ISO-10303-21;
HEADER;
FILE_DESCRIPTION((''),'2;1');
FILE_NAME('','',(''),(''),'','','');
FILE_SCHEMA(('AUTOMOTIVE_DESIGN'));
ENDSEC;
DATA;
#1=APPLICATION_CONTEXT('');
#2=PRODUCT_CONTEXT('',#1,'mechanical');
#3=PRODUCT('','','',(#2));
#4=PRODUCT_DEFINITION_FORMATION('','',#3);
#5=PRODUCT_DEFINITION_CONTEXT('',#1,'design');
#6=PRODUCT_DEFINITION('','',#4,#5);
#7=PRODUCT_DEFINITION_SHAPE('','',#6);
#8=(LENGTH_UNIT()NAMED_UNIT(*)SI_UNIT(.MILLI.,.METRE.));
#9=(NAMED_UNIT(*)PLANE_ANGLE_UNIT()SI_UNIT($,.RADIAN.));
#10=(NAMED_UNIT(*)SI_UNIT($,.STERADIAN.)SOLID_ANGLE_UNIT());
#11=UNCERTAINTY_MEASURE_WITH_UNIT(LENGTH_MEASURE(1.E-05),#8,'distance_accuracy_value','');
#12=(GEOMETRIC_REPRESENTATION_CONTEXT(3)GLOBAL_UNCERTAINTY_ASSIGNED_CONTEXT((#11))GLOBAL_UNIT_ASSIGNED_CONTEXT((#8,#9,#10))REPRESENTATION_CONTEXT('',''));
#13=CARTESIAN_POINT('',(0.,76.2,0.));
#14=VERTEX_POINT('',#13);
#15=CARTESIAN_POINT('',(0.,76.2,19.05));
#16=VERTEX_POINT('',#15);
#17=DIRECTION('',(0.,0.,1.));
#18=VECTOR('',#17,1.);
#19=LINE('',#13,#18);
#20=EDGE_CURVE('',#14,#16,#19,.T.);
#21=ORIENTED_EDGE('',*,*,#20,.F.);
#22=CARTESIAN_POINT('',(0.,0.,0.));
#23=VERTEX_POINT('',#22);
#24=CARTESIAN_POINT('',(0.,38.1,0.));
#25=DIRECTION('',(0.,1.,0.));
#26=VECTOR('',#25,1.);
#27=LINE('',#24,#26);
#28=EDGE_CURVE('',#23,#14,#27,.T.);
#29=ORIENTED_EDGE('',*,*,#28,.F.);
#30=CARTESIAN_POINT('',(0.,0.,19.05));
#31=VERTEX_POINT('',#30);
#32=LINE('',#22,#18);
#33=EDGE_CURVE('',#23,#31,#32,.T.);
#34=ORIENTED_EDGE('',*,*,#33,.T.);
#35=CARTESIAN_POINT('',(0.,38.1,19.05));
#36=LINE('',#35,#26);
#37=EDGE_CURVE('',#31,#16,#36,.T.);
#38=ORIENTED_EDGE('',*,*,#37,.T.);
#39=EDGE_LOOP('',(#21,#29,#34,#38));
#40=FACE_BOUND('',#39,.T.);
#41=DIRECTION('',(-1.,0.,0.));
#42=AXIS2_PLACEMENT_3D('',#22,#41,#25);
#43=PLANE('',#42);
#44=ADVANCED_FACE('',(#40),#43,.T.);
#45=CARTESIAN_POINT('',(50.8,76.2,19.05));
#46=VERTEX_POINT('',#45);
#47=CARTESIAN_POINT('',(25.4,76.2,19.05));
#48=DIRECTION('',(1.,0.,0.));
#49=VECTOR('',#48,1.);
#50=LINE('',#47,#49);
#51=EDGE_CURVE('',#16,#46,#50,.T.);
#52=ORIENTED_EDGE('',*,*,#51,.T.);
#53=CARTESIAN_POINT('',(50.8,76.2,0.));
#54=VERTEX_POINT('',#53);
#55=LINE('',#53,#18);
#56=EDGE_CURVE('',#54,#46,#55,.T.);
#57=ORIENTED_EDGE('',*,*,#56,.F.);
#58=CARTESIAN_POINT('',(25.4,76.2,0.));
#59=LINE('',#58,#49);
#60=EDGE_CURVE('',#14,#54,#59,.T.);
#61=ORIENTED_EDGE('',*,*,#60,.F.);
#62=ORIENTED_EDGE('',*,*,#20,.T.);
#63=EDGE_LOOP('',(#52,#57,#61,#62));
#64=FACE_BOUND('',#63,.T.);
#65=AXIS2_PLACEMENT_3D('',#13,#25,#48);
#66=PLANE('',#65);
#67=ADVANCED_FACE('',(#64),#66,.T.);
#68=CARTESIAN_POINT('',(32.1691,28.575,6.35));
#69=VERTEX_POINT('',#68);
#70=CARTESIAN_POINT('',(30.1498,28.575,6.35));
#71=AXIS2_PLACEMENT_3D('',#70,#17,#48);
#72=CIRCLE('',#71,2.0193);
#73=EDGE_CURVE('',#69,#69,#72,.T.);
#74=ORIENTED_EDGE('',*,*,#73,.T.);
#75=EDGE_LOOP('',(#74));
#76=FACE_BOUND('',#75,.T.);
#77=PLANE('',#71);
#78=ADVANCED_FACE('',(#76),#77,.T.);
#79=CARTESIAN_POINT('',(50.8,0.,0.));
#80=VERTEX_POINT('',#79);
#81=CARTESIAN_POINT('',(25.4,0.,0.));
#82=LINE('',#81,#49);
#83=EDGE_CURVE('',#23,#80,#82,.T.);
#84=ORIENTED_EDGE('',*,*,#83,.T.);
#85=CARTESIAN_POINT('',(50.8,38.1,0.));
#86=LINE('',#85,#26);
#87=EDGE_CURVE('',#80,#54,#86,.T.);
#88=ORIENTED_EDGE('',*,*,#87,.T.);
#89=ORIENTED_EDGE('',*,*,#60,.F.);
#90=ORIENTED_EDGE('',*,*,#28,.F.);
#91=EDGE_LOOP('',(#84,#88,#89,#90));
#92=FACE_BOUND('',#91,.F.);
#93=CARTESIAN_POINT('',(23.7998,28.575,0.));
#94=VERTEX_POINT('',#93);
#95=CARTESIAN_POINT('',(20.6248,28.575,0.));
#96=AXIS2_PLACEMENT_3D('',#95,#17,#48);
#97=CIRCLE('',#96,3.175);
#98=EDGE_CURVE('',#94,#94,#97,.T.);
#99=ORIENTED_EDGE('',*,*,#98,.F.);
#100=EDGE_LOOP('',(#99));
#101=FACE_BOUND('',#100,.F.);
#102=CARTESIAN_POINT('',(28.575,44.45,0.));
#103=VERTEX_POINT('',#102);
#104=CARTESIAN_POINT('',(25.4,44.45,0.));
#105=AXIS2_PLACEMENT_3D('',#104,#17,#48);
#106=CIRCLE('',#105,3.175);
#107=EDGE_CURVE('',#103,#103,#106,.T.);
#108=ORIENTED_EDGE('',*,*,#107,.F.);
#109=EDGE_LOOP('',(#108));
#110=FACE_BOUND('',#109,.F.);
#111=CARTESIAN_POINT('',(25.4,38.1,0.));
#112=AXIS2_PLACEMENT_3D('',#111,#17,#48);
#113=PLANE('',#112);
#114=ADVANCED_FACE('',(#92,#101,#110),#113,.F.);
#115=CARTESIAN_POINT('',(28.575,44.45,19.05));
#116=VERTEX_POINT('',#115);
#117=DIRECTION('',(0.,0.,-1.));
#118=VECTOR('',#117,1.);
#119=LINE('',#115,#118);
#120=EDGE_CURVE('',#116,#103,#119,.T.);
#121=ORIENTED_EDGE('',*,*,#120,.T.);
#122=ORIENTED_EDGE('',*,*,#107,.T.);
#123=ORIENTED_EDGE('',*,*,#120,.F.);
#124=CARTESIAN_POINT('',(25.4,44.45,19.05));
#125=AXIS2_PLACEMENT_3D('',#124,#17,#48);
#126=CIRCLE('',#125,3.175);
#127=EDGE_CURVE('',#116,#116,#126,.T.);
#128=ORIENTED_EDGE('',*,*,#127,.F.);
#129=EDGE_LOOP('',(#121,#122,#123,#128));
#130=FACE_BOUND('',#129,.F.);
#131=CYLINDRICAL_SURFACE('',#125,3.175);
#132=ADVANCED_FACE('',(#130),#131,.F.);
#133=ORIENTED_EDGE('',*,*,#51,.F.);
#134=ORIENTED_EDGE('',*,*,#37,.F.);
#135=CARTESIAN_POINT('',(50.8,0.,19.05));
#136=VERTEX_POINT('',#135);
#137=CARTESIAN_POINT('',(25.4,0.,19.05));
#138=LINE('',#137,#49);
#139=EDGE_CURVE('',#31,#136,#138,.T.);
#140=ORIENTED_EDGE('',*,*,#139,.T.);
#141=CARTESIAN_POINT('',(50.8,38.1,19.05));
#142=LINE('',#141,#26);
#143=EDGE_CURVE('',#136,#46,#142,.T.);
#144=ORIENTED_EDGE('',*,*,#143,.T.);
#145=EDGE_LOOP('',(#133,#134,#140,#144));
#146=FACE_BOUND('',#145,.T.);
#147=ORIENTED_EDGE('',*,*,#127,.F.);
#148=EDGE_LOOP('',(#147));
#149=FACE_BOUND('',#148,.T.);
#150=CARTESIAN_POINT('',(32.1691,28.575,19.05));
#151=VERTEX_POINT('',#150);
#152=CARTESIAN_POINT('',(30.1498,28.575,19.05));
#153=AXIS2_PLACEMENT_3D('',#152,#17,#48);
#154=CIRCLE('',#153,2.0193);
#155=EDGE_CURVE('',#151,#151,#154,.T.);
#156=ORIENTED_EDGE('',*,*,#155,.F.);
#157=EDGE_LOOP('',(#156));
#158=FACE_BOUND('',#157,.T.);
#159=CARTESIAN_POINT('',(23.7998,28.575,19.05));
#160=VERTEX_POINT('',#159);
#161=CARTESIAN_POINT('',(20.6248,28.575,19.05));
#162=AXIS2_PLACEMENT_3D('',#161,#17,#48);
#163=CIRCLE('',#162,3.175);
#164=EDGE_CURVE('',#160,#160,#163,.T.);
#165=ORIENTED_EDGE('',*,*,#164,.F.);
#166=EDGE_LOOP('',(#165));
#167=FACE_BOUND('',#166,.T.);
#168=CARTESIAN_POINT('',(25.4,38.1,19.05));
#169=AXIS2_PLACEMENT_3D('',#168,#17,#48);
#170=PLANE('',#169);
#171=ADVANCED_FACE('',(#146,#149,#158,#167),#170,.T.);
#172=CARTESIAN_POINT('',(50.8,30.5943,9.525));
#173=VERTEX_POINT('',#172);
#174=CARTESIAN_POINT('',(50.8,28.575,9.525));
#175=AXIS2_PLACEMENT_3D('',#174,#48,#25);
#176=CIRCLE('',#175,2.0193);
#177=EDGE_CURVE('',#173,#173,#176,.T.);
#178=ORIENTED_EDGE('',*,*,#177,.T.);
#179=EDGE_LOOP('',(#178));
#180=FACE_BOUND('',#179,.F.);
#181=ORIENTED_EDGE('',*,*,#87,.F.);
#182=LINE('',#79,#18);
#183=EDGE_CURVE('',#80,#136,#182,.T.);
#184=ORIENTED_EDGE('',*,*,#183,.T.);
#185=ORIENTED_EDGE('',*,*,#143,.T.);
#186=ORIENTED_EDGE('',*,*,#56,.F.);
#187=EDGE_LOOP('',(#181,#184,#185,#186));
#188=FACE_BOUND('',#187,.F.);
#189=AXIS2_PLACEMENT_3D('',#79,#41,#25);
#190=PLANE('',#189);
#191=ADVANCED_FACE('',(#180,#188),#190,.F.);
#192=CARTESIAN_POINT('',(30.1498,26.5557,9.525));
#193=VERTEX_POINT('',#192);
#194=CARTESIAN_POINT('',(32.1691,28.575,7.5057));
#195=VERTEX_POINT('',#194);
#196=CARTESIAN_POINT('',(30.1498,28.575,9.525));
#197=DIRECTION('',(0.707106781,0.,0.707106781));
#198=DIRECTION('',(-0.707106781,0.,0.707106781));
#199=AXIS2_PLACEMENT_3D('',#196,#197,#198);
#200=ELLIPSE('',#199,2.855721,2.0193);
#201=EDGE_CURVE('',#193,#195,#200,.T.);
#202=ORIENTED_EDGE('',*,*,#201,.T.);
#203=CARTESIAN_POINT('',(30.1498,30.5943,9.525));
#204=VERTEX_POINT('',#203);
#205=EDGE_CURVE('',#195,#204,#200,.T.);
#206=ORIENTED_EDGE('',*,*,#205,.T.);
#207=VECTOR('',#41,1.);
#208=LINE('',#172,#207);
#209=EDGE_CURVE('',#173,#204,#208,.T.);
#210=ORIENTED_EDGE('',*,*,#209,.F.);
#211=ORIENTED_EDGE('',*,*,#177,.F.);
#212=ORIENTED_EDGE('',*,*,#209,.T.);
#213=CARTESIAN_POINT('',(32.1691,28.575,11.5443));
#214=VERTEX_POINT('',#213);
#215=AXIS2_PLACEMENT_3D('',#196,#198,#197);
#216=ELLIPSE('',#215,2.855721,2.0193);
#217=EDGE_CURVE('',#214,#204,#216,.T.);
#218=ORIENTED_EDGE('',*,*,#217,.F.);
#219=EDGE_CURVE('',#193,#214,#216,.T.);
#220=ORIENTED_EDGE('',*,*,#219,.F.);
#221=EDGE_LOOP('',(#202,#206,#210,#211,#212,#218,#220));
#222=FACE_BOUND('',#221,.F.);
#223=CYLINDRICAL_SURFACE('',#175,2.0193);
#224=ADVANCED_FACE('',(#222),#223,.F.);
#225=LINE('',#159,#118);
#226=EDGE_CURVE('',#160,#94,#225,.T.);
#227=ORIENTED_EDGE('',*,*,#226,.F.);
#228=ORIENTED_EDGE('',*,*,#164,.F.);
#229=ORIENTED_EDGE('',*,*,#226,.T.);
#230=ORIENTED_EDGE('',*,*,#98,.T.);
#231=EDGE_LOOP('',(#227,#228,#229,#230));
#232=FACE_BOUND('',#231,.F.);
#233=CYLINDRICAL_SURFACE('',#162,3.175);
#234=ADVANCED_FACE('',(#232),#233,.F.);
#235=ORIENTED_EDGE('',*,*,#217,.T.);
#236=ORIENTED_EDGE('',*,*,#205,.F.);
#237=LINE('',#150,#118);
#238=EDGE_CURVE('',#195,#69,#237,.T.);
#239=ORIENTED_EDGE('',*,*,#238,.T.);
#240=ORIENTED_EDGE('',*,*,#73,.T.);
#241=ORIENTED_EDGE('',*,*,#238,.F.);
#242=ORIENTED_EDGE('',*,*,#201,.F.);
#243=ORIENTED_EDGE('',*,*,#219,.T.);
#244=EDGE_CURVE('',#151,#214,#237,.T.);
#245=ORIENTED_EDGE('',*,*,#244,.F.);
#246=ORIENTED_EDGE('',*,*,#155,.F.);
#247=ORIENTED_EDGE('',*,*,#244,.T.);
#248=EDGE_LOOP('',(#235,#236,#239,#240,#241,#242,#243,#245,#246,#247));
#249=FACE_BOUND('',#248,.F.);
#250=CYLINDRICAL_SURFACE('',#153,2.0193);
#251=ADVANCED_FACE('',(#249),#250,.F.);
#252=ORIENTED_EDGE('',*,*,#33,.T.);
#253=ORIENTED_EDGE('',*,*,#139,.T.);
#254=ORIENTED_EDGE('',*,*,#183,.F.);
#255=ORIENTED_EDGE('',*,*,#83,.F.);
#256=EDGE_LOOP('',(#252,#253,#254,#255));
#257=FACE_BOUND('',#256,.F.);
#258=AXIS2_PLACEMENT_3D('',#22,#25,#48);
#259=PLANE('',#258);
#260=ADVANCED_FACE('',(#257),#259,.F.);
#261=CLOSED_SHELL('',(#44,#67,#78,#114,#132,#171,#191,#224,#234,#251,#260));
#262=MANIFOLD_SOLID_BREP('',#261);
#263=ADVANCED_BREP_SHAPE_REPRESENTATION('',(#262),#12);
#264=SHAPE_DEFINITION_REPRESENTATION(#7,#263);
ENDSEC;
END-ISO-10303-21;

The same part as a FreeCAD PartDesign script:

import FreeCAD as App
import Part
import Sketcher
Q = App.Units.Quantity

doc = App.newDocument("Part")
body = doc.addObject("PartDesign::Body", "Body")

sketch1 = doc.addObject("Sketcher::SketchObject", "Sketch")
body.addObject(sketch1)
sketch1.AttachmentSupport = (doc.XY_Plane, [""])
sketch1.MapMode = "FlatFace"
sketch1.addGeometry([
    Part.LineSegment(App.Vector(0, 76, 0), App.Vector(0, 0, 0)),
    Part.LineSegment(App.Vector(0, 0, 0), App.Vector(51, 0, 0)),
    Part.LineSegment(App.Vector(51, 0, 0), App.Vector(51, 76, 0)),
    Part.LineSegment(App.Vector(51, 76, 0), App.Vector(0, 76, 0)),
], False)
sketch1.addConstraint([
    Sketcher.Constraint("Coincident", 0, 2, 1, 1),
    Sketcher.Constraint("Coincident", 1, 2, 2, 1),
    Sketcher.Constraint("Coincident", 2, 2, 3, 1),
    Sketcher.Constraint("Coincident", 3, 2, 0, 1),
    Sketcher.Constraint("Vertical", 0),
    Sketcher.Constraint("Horizontal", 1),
    Sketcher.Constraint("Vertical", 2),
    Sketcher.Constraint("Horizontal", 3),
    Sketcher.Constraint("Coincident", 0, 2, -1, 1),
    Sketcher.Constraint("DistanceX", 1, 1, 1, 2, Q("2 in")),
    Sketcher.Constraint("DistanceY", 0, 2, 0, 1, Q("3 in")),
])
pad1 = doc.addObject("PartDesign::Pad", "Pad")
body.addObject(pad1)
pad1.Profile = sketch1
pad1.Length = Q("0.75 in")

sketch2 = doc.addObject("Sketcher::SketchObject", "Sketch001")
body.addObject(sketch2)
sketch2.AttachmentSupport = (doc.XY_Plane, [""])
sketch2.MapMode = "FlatFace"
sketch2.AttachmentOffset = App.Placement(App.Vector(0, 0, 0.75 * 25.4), App.Rotation())
sketch2.addGeometry([
    Part.Circle(App.Vector(25.4, 44.5, 0), App.Vector(0, 0, 1), 3.2),
    Part.Circle(App.Vector(20.6, 28.6, 0), App.Vector(0, 0, 1), 3.2),
], False)
sketch2.addConstraint([
    Sketcher.Constraint("Equal", 0, 1),
    Sketcher.Constraint("Diameter", 0, Q("0.25 in")),
    Sketcher.Constraint("DistanceX", -1, 1, 0, 3, Q("1 in")),
    Sketcher.Constraint("DistanceY", -1, 1, 0, 3, Q("1.75 in")),
    Sketcher.Constraint("DistanceX", -1, 1, 1, 3, Q("0.812 in")),
    Sketcher.Constraint("DistanceY", -1, 1, 1, 3, Q("1.125 in")),
])
pocket1 = doc.addObject("PartDesign::Pocket", "Pocket")
body.addObject(pocket1)
pocket1.Profile = sketch2
pocket1.Length = Q("0.75 in")

sketch3 = doc.addObject("Sketcher::SketchObject", "Sketch002")
body.addObject(sketch3)
sketch3.AttachmentSupport = (doc.XY_Plane, [""])
sketch3.MapMode = "FlatFace"
sketch3.AttachmentOffset = App.Placement(App.Vector(0, 0, 0.75 * 25.4), App.Rotation())
sketch3.addGeometry([
    Part.Circle(App.Vector(25.4, 44.5, 0), App.Vector(0, 0, 1), 3.2),
    Part.Circle(App.Vector(20.6, 28.6, 0), App.Vector(0, 0, 1), 3.2),
    Part.Circle(App.Vector(30.1, 28.6, 0), App.Vector(0, 0, 1), 2),
], False)
sketch3.addConstraint([
    Sketcher.Constraint("Equal", 0, 1),
    Sketcher.Constraint("Horizontal", 1, 3, 2, 3),
    Sketcher.Constraint("Diameter", 0, Q("0.25 in")),
    Sketcher.Constraint("Diameter", 2, Q("0.159 in")),
    Sketcher.Constraint("DistanceX", -1, 1, 0, 3, Q("1 in")),
    Sketcher.Constraint("DistanceY", -1, 1, 0, 3, Q("1.75 in")),
    Sketcher.Constraint("DistanceX", -1, 1, 1, 3, Q("0.812 in")),
    Sketcher.Constraint("DistanceY", -1, 1, 1, 3, Q("1.125 in")),
    Sketcher.Constraint("DistanceX", -1, 1, 2, 3, Q("1.187 in")),
])
pocket2 = doc.addObject("PartDesign::Pocket", "Pocket001")
body.addObject(pocket2)
pocket2.Profile = sketch3
pocket2.Length = Q("0.5 in")

sketch4 = doc.addObject("Sketcher::SketchObject", "Sketch003")
body.addObject(sketch4)
sketch4.AttachmentSupport = (doc.YZ_Plane, [""])
sketch4.MapMode = "FlatFace"
sketch4.AttachmentOffset = App.Placement(App.Vector(0, 0, 2 * 25.4), App.Rotation())
sketch4.addGeometry(Part.Circle(App.Vector(28.6, 9.5, 0), App.Vector(0, 0, 1), 2), False)
sketch4.addConstraint([
    Sketcher.Constraint("Diameter", 0, Q("0.159 in")),
    Sketcher.Constraint("DistanceX", -1, 1, 0, 3, Q("1.125 in")),
    Sketcher.Constraint("DistanceY", -1, 1, 0, 3, Q("0.375 in")),
])
pocket3 = doc.addObject("PartDesign::Pocket", "Pocket002")
body.addObject(pocket3)
pocket3.Profile = sketch4
pocket3.Length = Q("0.813 in")

doc.recompute()
